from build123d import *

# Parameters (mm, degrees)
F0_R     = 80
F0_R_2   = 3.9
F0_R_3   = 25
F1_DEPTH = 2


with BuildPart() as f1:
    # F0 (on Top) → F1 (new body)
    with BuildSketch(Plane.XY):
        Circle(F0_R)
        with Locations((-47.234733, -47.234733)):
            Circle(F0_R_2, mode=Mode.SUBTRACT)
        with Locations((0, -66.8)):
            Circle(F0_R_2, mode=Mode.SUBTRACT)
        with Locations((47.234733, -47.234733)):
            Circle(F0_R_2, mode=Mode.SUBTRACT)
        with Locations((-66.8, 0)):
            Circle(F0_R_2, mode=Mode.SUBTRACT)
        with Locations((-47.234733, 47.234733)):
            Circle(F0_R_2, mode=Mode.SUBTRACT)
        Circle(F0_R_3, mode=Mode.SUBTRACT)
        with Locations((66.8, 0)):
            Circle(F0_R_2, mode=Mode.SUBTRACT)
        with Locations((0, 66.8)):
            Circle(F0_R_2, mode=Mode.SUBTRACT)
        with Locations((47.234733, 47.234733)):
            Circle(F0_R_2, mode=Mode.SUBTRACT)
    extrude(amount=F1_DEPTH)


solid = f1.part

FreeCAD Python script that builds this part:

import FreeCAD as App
import Part
import Sketcher

V = App.Vector
Q = App.Units.Quantity

doc = App.newDocument("Part")
body = doc.addObject("PartDesign::Body", "Body")

# Sketch on XY plane
sketch1 = body.newObject("Sketcher::SketchObject", "Sketch")
sketch1.AttachmentSupport = (doc.getObject("XY_Plane"), [""])
sketch1.MapMode = "FlatFace"
sketch1.addGeometry([
    Part.Circle(V(0, 0, 0), V(0, 0, 1), 80),  # 0
    Part.Circle(V(-47.2, -47.2, 0), V(0, 0, 1), 3.9),  # 1
    Part.Circle(V(0, -66.8, 0), V(0, 0, 1), 3.9),  # 2
    Part.Circle(V(47.2, -47.2, 0), V(0, 0, 1), 3.9),  # 3
    Part.Circle(V(0, 0, 0), V(0, 0, 1), 25),  # 4
    Part.Circle(V(-66.8, 0, 0), V(0, 0, 1), 3.9),  # 5
    Part.Circle(V(-47.2, 47.2, 0), V(0, 0, 1), 3.9),  # 6
    Part.Circle(V(66.8, 0, 0), V(0, 0, 1), 3.9),  # 7
    Part.Circle(V(0, 66.8, 0), V(0, 0, 1), 3.9),  # 8
    Part.Circle(V(47.2, 47.2, 0), V(0, 0, 1), 3.9),  # 9
], False)
sketch1.addConstraint([
    Sketcher.Constraint("Coincident", 0, 3, -1, 1),
    Sketcher.Constraint("Coincident", 4, 3, -1, 1),
    Sketcher.Constraint("Equal", 1, 2),
    Sketcher.Constraint("Equal", 2, 3),
    Sketcher.Constraint("Equal", 3, 5),
    Sketcher.Constraint("Equal", 5, 6),
    Sketcher.Constraint("Equal", 6, 7),
    Sketcher.Constraint("Equal", 7, 8),
    Sketcher.Constraint("Equal", 8, 9),
    Sketcher.Constraint("Symmetric", 3, 3, 6, 3, -1, 1),
    Sketcher.Constraint("Symmetric", 5, 3, 7, 3, -1, 1),
    Sketcher.Constraint("Symmetric", 2, 3, 8, 3, -1, 1),
    Sketcher.Constraint("Symmetric", 1, 3, 9, 3, -1, 1),
    Sketcher.Constraint("Symmetric", 1, 3, 3, 3, -2),
    Sketcher.Constraint("PointOnObject", 2, 3, -2),
    Sketcher.Constraint("PointOnObject", 5, 3, -1),
    Sketcher.Constraint("Diameter", 0, Q("160 mm")),
    Sketcher.Constraint("Diameter", 4, Q("50 mm")),
    Sketcher.Constraint("Diameter", 1, Q("7.8 mm")),
    Sketcher.Constraint("DistanceY", 2, 3, -1, 1, Q("66.8 mm")),
    Sketcher.Constraint("DistanceX", 5, 3, -1, 1, Q("66.8 mm")),
    Sketcher.Constraint("DistanceX", 1, 3, -1, 1, Q("47.234733 mm")),
    Sketcher.Constraint("DistanceY", 1, 3, -1, 1, Q("47.234733 mm")),
])
pad1 = body.newObject("PartDesign::Pad", "Pad")
pad1.Profile = sketch1
pad1.Length = 2

doc.recompute()
